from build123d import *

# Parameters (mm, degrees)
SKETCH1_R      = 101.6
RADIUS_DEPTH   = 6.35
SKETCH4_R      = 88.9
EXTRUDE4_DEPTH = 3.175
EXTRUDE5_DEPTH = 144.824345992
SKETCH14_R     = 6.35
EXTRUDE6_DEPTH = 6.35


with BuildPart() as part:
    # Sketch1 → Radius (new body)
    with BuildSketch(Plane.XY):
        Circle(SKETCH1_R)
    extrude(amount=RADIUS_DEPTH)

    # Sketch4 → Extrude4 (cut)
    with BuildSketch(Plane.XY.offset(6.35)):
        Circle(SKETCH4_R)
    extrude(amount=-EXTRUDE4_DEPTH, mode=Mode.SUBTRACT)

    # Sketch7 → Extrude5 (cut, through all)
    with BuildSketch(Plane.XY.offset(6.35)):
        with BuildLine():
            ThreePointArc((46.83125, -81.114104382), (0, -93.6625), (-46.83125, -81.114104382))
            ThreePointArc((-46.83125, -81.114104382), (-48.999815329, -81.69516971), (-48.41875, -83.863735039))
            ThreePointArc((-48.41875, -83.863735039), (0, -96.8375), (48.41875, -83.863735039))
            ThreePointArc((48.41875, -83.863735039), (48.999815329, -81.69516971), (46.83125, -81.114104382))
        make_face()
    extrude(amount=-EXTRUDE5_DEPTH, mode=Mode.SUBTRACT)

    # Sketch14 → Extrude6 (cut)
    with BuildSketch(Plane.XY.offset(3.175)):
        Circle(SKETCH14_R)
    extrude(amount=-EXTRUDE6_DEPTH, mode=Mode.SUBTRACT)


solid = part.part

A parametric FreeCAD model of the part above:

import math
import FreeCAD as App
import Part
import Sketcher
from FreeCAD import Vector
Q = App.Units.Quantity

doc = App.newDocument("Part")
params = doc.addObject("Spreadsheet::Sheet", "Params")
for row, (alias, value) in enumerate([
    ("sketch1_diameter", "8 in"),
    ("pad1_length", "0.25 in"),
    ("sketch2_diameter", "7 in"),
    ("pocket1_length", "0.125 in"),
    ("sketch3_radius", "3.6875 in"),
    ("sketch3_radius2", "0.0625 in"),
    ("sketch4_diameter", "0.5 in"),
    ("pocket3_length", "0.25 in"),
], start=1):
    params.set(f"A{row}", alias)
    params.set(f"B{row}", "=" + value)
    params.setAlias(f"B{row}", alias)

body = doc.addObject("PartDesign::Body", "Body")

sketch1 = doc.addObject("Sketcher::SketchObject", "Sketch")
body.addObject(sketch1)
sketch1.AttachmentSupport = (doc.XY_Plane, [""])
sketch1.MapMode = "FlatFace"
sketch1.addGeometry(Part.Circle(Vector(0, 0, 0), Vector(0, 0, 1), 101.6), False)
sketch1.addConstraint([
    Sketcher.Constraint("Coincident", 0, 3, -1, 1),
    Sketcher.Constraint("Diameter", 0, Q("8 in")),
])
sketch1.setExpression("Constraints[1]", "Params.sketch1_diameter")
pad1 = doc.addObject("PartDesign::Pad", "Pad")
body.addObject(pad1)
pad1.Profile = sketch1
pad1.setExpression("Length", "Params.pad1_length")

sketch2 = doc.addObject("Sketcher::SketchObject", "Sketch001")
body.addObject(sketch2)
sketch2.AttachmentSupport = (doc.XY_Plane, [""])
sketch2.MapMode = "FlatFace"
sketch2.AttachmentOffset = App.Placement(Vector(0, 0, 0.25 * 25.4), App.Rotation())
sketch2.addGeometry(Part.Circle(Vector(0, 0, 0), Vector(0, 0, 1), 88.9), False)
sketch2.addConstraint([
    Sketcher.Constraint("Coincident", 0, 3, -1, 1),
    Sketcher.Constraint("Diameter", 0, Q("7 in")),
])
sketch2.setExpression("Constraints[1]", "Params.sketch2_diameter")
pocket1 = doc.addObject("PartDesign::Pocket", "Pocket")
body.addObject(pocket1)
pocket1.Profile = sketch2
pocket1.setExpression("Length", "Params.pocket1_length")

sketch3 = doc.addObject("Sketcher::SketchObject", "Sketch002")
body.addObject(sketch3)
sketch3.AttachmentSupport = (doc.XY_Plane, [""])
sketch3.MapMode = "FlatFace"
sketch3.AttachmentOffset = App.Placement(Vector(0, 0, 0.25 * 25.4), App.Rotation())
sketch3.addGeometry([
    Part.ArcOfCircle(Part.Circle(Vector(0, 0, 0), Vector(0, 0, 1), 93.6625), math.radians(-120), math.radians(-60)),
    Part.ArcOfCircle(Part.Circle(Vector(-47.625, -82.48892, 0), Vector(0, 0, 1), 1.5875), math.radians(60), math.radians(240)),
    Part.ArcOfCircle(Part.Circle(Vector(0, 0, 0), Vector(0, 0, 1), 96.8375), math.radians(-120), math.radians(-60)),
    Part.ArcOfCircle(Part.Circle(Vector(47.625, -82.48892, 0), Vector(0, 0, 1), 1.5875), math.radians(-60), math.radians(120)),
], False)
sketch3.addConstraint([
    Sketcher.Constraint("Tangent", 0, 1, 1, 1),
    Sketcher.Constraint("Tangent", 1, 2, 2, 1),
    Sketcher.Constraint("Tangent", 2, 2, 3, 1),
    Sketcher.Constraint("Tangent", 3, 2, 0, 2),
    Sketcher.Constraint("Coincident", 0, 3, -1, 1),
    Sketcher.Constraint("Coincident", 2, 3, -1, 1),
    Sketcher.Constraint("Horizontal", 1, 3, 3, 3),
    Sketcher.Constraint("Radius", 0, Q("3.6875 in")),
    Sketcher.Constraint("Radius", 1, Q("0.0625 in")),
    Sketcher.Constraint("DistanceX", 1, 3, 3, 3, Q("3.75 in")),
])
sketch3.setExpression("Constraints[7]", "Params.sketch3_radius")
sketch3.setExpression("Constraints[8]", "Params.sketch3_radius2")
pocket2 = doc.addObject("PartDesign::Pocket", "Pocket001")
body.addObject(pocket2)
pocket2.Profile = sketch3
pocket2.Type = "ThroughAll"

sketch4 = doc.addObject("Sketcher::SketchObject", "Sketch003")
body.addObject(sketch4)
sketch4.AttachmentSupport = (doc.XY_Plane, [""])
sketch4.MapMode = "FlatFace"
sketch4.AttachmentOffset = App.Placement(Vector(0, 0, 0.125 * 25.4), App.Rotation())
sketch4.addGeometry(Part.Circle(Vector(0, 0, 0), Vector(0, 0, 1), 6.35), False)
sketch4.addConstraint([
    Sketcher.Constraint("Coincident", 0, 3, -1, 1),
    Sketcher.Constraint("Diameter", 0, Q("0.5 in")),
])
sketch4.setExpression("Constraints[1]", "Params.sketch4_diameter")
pocket3 = doc.addObject("PartDesign::Pocket", "Pocket002")
body.addObject(pocket3)
pocket3.Profile = sketch4
pocket3.setExpression("Length", "Params.pocket3_length")

doc.recompute()
